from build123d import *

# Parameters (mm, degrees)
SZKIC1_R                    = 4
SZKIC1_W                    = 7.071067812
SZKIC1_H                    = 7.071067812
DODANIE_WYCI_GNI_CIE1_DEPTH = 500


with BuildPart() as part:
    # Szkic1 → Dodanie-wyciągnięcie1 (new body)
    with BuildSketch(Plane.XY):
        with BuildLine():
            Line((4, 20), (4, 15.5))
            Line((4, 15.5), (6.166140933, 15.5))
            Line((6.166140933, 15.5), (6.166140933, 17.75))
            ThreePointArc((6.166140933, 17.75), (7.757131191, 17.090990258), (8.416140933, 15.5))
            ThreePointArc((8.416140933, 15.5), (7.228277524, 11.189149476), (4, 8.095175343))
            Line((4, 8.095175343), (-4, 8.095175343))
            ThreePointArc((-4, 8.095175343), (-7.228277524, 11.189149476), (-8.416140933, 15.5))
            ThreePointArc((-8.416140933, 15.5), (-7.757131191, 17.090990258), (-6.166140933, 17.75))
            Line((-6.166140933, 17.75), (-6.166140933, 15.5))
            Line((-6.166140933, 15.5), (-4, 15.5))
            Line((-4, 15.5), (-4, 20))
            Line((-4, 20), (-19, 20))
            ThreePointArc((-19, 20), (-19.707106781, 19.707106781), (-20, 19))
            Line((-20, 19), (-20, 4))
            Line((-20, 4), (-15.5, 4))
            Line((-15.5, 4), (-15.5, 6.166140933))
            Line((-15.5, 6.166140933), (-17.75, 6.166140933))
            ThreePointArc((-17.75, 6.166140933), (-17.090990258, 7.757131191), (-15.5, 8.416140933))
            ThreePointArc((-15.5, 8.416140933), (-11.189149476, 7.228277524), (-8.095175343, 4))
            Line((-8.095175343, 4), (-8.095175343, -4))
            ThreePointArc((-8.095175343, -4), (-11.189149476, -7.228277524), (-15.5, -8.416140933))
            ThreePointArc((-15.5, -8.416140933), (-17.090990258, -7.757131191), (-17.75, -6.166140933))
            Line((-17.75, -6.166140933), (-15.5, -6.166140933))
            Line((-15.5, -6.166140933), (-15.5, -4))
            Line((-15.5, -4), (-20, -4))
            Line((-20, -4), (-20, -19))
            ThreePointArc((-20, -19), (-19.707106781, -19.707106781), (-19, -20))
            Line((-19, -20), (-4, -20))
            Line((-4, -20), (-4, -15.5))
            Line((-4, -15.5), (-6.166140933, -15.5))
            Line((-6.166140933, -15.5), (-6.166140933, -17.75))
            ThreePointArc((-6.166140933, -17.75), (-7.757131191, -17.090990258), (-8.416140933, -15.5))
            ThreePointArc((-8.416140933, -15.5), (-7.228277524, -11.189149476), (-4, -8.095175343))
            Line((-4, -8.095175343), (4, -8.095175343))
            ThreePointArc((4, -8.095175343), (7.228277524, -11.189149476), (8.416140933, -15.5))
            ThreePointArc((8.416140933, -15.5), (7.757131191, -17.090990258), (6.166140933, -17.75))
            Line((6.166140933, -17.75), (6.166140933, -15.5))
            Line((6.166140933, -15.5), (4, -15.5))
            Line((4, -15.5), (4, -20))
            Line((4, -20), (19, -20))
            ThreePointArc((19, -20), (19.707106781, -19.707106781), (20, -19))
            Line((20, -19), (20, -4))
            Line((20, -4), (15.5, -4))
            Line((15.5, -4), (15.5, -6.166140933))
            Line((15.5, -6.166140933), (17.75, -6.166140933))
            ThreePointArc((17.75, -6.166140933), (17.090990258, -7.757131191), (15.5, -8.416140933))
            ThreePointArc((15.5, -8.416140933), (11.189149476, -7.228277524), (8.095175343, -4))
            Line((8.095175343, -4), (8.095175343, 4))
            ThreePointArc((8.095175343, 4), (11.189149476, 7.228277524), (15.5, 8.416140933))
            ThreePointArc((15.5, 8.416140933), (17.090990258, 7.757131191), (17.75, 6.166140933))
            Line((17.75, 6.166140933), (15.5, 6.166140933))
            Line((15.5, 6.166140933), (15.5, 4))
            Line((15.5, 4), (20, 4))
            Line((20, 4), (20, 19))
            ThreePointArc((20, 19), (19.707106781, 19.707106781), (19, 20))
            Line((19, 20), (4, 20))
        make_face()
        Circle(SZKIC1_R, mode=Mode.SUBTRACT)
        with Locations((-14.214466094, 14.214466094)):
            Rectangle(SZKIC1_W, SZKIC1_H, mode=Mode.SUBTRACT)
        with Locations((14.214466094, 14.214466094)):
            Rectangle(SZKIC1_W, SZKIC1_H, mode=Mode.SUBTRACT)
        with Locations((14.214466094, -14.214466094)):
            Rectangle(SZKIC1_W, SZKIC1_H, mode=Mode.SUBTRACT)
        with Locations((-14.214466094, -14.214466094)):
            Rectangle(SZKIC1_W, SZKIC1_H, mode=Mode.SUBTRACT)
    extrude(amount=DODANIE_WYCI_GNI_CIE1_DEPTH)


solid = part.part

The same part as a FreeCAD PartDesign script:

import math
import FreeCAD as App
import Part
import Sketcher

V = App.Vector


def add_polygon(sketch, points):
    """Adds a closed chain of lines whose ends are joined by coincident constraints."""
    first, n = sketch.GeometryCount, len(points)
    for a, b in zip(points, points[1:] + points[:1]):
        sketch.addGeometry(Part.LineSegment(App.Vector(*a, 0), App.Vector(*b, 0)), False)
    for i in range(n):
        sketch.addConstraint(Sketcher.Constraint("Coincident", first + i, 2, first + (i + 1) % n, 1))

doc = App.newDocument("Part")
body = doc.addObject("PartDesign::Body", "Body")

sketch1 = doc.addObject("Sketcher::SketchObject", "Sketch")
body.addObject(sketch1)
sketch1.AttachmentSupport = (doc.XY_Plane, [""])
sketch1.MapMode = "FlatFace"
sketch1.addGeometry(Part.LineSegment(V(4, 20, 0), V(4, 15.5, 0)), False)
sketch1.addGeometry(Part.LineSegment(V(4, 15.5, 0), V(6.2, 15.5, 0)), False)
sketch1.addGeometry(Part.LineSegment(V(6.2, 15.5, 0), V(6.2, 17.8, 0)), False)
sketch1.addGeometry(Part.ArcOfCircle(Part.Circle(V(6.2, 15.5, 0), V(0, 0, 1), 2.2), math.radians(0), math.radians(90)), False)
sketch1.addGeometry(Part.ArcOfCircle(Part.Circle(V(0, 15.5, 0), V(0, 0, 1), 8.4), math.radians(-62), math.radians(0)), False)
sketch1.addGeometry(Part.LineSegment(V(4, 8.1, 0), V(-4, 8.1, 0)), False)
sketch1.addGeometry(Part.ArcOfCircle(Part.Circle(V(0, 15.5, 0), V(0, 0, 1), 8.4), math.radians(180), math.radians(242)), False)
sketch1.addGeometry(Part.ArcOfCircle(Part.Circle(V(-6.2, 15.5, 0), V(0, 0, 1), 2.2), math.radians(90), math.radians(180)), False)
sketch1.addGeometry(Part.LineSegment(V(-6.2, 17.8, 0), V(-6.2, 15.5, 0)), False)
sketch1.addGeometry(Part.LineSegment(V(-6.2, 15.5, 0), V(-4, 15.5, 0)), False)
sketch1.addGeometry(Part.LineSegment(V(-4, 15.5, 0), V(-4, 20, 0)), False)
sketch1.addGeometry(Part.LineSegment(V(-4, 20, 0), V(-19, 20, 0)), False)
sketch1.addGeometry(Part.ArcOfCircle(Part.Circle(V(-19, 19, 0), V(0, 0, 1), 1), math.radians(90), math.radians(180)), False)
sketch1.addGeometry(Part.LineSegment(V(-20, 19, 0), V(-20, 4, 0)), False)
sketch1.addGeometry(Part.LineSegment(V(-20, 4, 0), V(-15.5, 4, 0)), False)
sketch1.addGeometry(Part.LineSegment(V(-15.5, 4, 0), V(-15.5, 6.2, 0)), False)
sketch1.addGeometry(Part.LineSegment(V(-15.5, 6.2, 0), V(-17.8, 6.2, 0)), False)
sketch1.addGeometry(Part.ArcOfCircle(Part.Circle(V(-15.5, 6.2, 0), V(0, 0, 1), 2.2), math.radians(90), math.radians(180)), False)
sketch1.addGeometry(Part.ArcOfCircle(Part.Circle(V(-15.5, 0, 0), V(0, 0, 1), 8.4), math.radians(28), math.radians(90)), False)
sketch1.addGeometry(Part.LineSegment(V(-8.1, 4, 0), V(-8.1, -4, 0)), False)
sketch1.addGeometry(Part.ArcOfCircle(Part.Circle(V(-15.5, 0, 0), V(0, 0, 1), 8.4), math.radians(-90), math.radians(-28)), False)
sketch1.addGeometry(Part.ArcOfCircle(Part.Circle(V(-15.5, -6.2, 0), V(0, 0, 1), 2.2), math.radians(180), math.radians(270)), False)
sketch1.addGeometry(Part.LineSegment(V(-17.8, -6.2, 0), V(-15.5, -6.2, 0)), False)
sketch1.addGeometry(Part.LineSegment(V(-15.5, -6.2, 0), V(-15.5, -4, 0)), False)
sketch1.addGeometry(Part.LineSegment(V(-15.5, -4, 0), V(-20, -4, 0)), False)
sketch1.addGeometry(Part.LineSegment(V(-20, -4, 0), V(-20, -19, 0)), False)
sketch1.addGeometry(Part.ArcOfCircle(Part.Circle(V(-19, -19, 0), V(0, 0, 1), 1), math.radians(-180), math.radians(-90)), False)
sketch1.addGeometry(Part.LineSegment(V(-19, -20, 0), V(-4, -20, 0)), False)
sketch1.addGeometry(Part.LineSegment(V(-4, -20, 0), V(-4, -15.5, 0)), False)
sketch1.addGeometry(Part.LineSegment(V(-4, -15.5, 0), V(-6.2, -15.5, 0)), False)
sketch1.addGeometry(Part.LineSegment(V(-6.2, -15.5, 0), V(-6.2, -17.8, 0)), False)
sketch1.addGeometry(Part.ArcOfCircle(Part.Circle(V(-6.2, -15.5, 0), V(0, 0, 1), 2.2), math.radians(180), math.radians(270)), False)
sketch1.addGeometry(Part.ArcOfCircle(Part.Circle(V(0, -15.5, 0), V(0, 0, 1), 8.4), math.radians(118), math.radians(180)), False)
sketch1.addGeometry(Part.LineSegment(V(-4, -8.1, 0), V(4, -8.1, 0)), False)
sketch1.addGeometry(Part.ArcOfCircle(Part.Circle(V(0, -15.5, 0), V(0, 0, 1), 8.4), math.radians(0), math.radians(62)), False)
sketch1.addGeometry(Part.ArcOfCircle(Part.Circle(V(6.2, -15.5, 0), V(0, 0, 1), 2.2), math.radians(-90), math.radians(0)), False)
sketch1.addGeometry(Part.LineSegment(V(6.2, -17.8, 0), V(6.2, -15.5, 0)), False)
sketch1.addGeometry(Part.LineSegment(V(6.2, -15.5, 0), V(4, -15.5, 0)), False)
sketch1.addGeometry(Part.LineSegment(V(4, -15.5, 0), V(4, -20, 0)), False)
sketch1.addGeometry(Part.LineSegment(V(4, -20, 0), V(19, -20, 0)), False)
sketch1.addGeometry(Part.ArcOfCircle(Part.Circle(V(19, -19, 0), V(0, 0, 1), 1), math.radians(-90), math.radians(0)), False)
sketch1.addGeometry(Part.LineSegment(V(20, -19, 0), V(20, -4, 0)), False)
sketch1.addGeometry(Part.LineSegment(V(20, -4, 0), V(15.5, -4, 0)), False)
sketch1.addGeometry(Part.LineSegment(V(15.5, -4, 0), V(15.5, -6.2, 0)), False)
sketch1.addGeometry(Part.LineSegment(V(15.5, -6.2, 0), V(17.8, -6.2, 0)), False)
sketch1.addGeometry(Part.ArcOfCircle(Part.Circle(V(15.5, -6.2, 0), V(0, 0, 1), 2.2), math.radians(-90), math.radians(0)), False)
sketch1.addGeometry(Part.ArcOfCircle(Part.Circle(V(15.5, 0, 0), V(0, 0, 1), 8.4), math.radians(-152), math.radians(-90)), False)
sketch1.addGeometry(Part.LineSegment(V(8.1, -4, 0), V(8.1, 4, 0)), False)
sketch1.addGeometry(Part.ArcOfCircle(Part.Circle(V(15.5, 0, 0), V(0, 0, 1), 8.4), math.radians(90), math.radians(152)), False)
sketch1.addGeometry(Part.ArcOfCircle(Part.Circle(V(15.5, 6.2, 0), V(0, 0, 1), 2.2), math.radians(0), math.radians(90)), False)
sketch1.addGeometry(Part.LineSegment(V(17.8, 6.2, 0), V(15.5, 6.2, 0)), False)
sketch1.addGeometry(Part.LineSegment(V(15.5, 6.2, 0), V(15.5, 4, 0)), False)
sketch1.addGeometry(Part.LineSegment(V(15.5, 4, 0), V(20, 4, 0)), False)
sketch1.addGeometry(Part.LineSegment(V(20, 4, 0), V(20, 19, 0)), False)
sketch1.addGeometry(Part.ArcOfCircle(Part.Circle(V(19, 19, 0), V(0, 0, 1), 1), math.radians(0), math.radians(90)), False)
sketch1.addGeometry(Part.LineSegment(V(19, 20, 0), V(4, 20, 0)), False)
add_polygon(sketch1, [(-10.7, -17.8), (-17.8, -17.8), (-17.8, -10.7), (-10.7, -10.7)])
add_polygon(sketch1, [(17.8, -17.8), (10.7, -17.8), (10.7, -10.7), (17.8, -10.7)])
add_polygon(sketch1, [(-10.7, 10.7), (-17.8, 10.7), (-17.8, 17.8), (-10.7, 17.8)])
sketch1.addGeometry(Part.Circle(V(0, 0, 0), V(0, 0, 1), 4), False)
add_polygon(sketch1, [(17.8, 10.7), (10.7, 10.7), (10.7, 17.8), (17.8, 17.8)])
sketch1.addConstraint([
    Sketcher.Constraint("Coincident", 0, 2, 1, 1),
    Sketcher.Constraint("Coincident", 1, 2, 2, 1),
    Sketcher.Constraint("Coincident", 2, 2, 3, 2),
    Sketcher.Constraint("Tangent", 3, 1, 4, 2),
    Sketcher.Constraint("Coincident", 4, 1, 5, 1),
    Sketcher.Constraint("Coincident", 5, 2, 6, 2),
    Sketcher.Constraint("Tangent", 6, 1, 7, 2),
    Sketcher.Constraint("Coincident", 7, 1, 8, 1),
    Sketcher.Constraint("Coincident", 8, 2, 9, 1),
    Sketcher.Constraint("Coincident", 9, 2, 10, 1),
    Sketcher.Constraint("Coincident", 10, 2, 11, 1),
    Sketcher.Constraint("Tangent", 11, 2, 12, 1),
    Sketcher.Constraint("Tangent", 12, 2, 13, 1),
    Sketcher.Constraint("Coincident", 13, 2, 14, 1),
    Sketcher.Constraint("Coincident", 14, 2, 15, 1),
    Sketcher.Constraint("Coincident", 15, 2, 16, 1),
    Sketcher.Constraint("Coincident", 16, 2, 17, 2),
    Sketcher.Constraint("Tangent", 17, 1, 18, 2),
    Sketcher.Constraint("Coincident", 18, 1, 19, 1),
    Sketcher.Constraint("Coincident", 19, 2, 20, 2),
    Sketcher.Constraint("Tangent", 20, 1, 21, 2),
    Sketcher.Constraint("Coincident", 21, 1, 22, 1),
    Sketcher.Constraint("Coincident", 22, 2, 23, 1),
    Sketcher.Constraint("Coincident", 23, 2, 24, 1),
    Sketcher.Constraint("Coincident", 24, 2, 25, 1),
    Sketcher.Constraint("Tangent", 25, 2, 26, 1),
    Sketcher.Constraint("Tangent", 26, 2, 27, 1),
    Sketcher.Constraint("Coincident", 27, 2, 28, 1),
    Sketcher.Constraint("Coincident", 28, 2, 29, 1),
    Sketcher.Constraint("Coincident", 29, 2, 30, 1),
    Sketcher.Constraint("Coincident", 30, 2, 31, 2),
    Sketcher.Constraint("Tangent", 31, 1, 32, 2),
    Sketcher.Constraint("Coincident", 32, 1, 33, 1),
    Sketcher.Constraint("Coincident", 33, 2, 34, 2),
    Sketcher.Constraint("Tangent", 34, 1, 35, 2),
    Sketcher.Constraint("Coincident", 35, 1, 36, 1),
    Sketcher.Constraint("Coincident", 36, 2, 37, 1),
    Sketcher.Constraint("Coincident", 37, 2, 38, 1),
    Sketcher.Constraint("Coincident", 38, 2, 39, 1),
    Sketcher.Constraint("Tangent", 39, 2, 40, 1),
    Sketcher.Constraint("Tangent", 40, 2, 41, 1),
    Sketcher.Constraint("Coincident", 41, 2, 42, 1),
    Sketcher.Constraint("Coincident", 42, 2, 43, 1),
    Sketcher.Constraint("Coincident", 43, 2, 44, 1),
    Sketcher.Constraint("Coincident", 44, 2, 45, 2),
    Sketcher.Constraint("Tangent", 45, 1, 46, 2),
    Sketcher.Constraint("Coincident", 46, 1, 47, 1),
    Sketcher.Constraint("Coincident", 47, 2, 48, 2),
    Sketcher.Constraint("Tangent", 48, 1, 49, 2),
    Sketcher.Constraint("Coincident", 49, 1, 50, 1),
    Sketcher.Constraint("Coincident", 50, 2, 51, 1),
    Sketcher.Constraint("Coincident", 51, 2, 52, 1),
    Sketcher.Constraint("Coincident", 52, 2, 53, 1),
    Sketcher.Constraint("Tangent", 53, 2, 54, 1),
    Sketcher.Constraint("Tangent", 54, 2, 55, 1),
    Sketcher.Constraint("Coincident", 55, 2, 0, 1),
    Sketcher.Constraint("Vertical", 0),
    Sketcher.Constraint("Horizontal", 1),
    Sketcher.Constraint("Vertical", 2),
    Sketcher.Constraint("Horizontal", 5),
    Sketcher.Constraint("Vertical", 8),
    Sketcher.Constraint("Horizontal", 9),
    Sketcher.Constraint("Vertical", 10),
    Sketcher.Constraint("Horizontal", 11),
    Sketcher.Constraint("Vertical", 13),
    Sketcher.Constraint("Horizontal", 14),
    Sketcher.Constraint("Vertical", 15),
    Sketcher.Constraint("Horizontal", 16),
    Sketcher.Constraint("Vertical", 19),
    Sketcher.Constraint("Horizontal", 22),
    Sketcher.Constraint("Vertical", 23),
    Sketcher.Constraint("Horizontal", 24),
    Sketcher.Constraint("Vertical", 25),
    Sketcher.Constraint("Horizontal", 27),
    Sketcher.Constraint("Vertical", 28),
    Sketcher.Constraint("Horizontal", 29),
    Sketcher.Constraint("Vertical", 30),
    Sketcher.Constraint("Horizontal", 33),
    Sketcher.Constraint("Vertical", 36),
    Sketcher.Constraint("Horizontal", 37),
    Sketcher.Constraint("Vertical", 38),
    Sketcher.Constraint("Horizontal", 39),
    Sketcher.Constraint("Vertical", 41),
    Sketcher.Constraint("Horizontal", 42),
    Sketcher.Constraint("Vertical", 43),
    Sketcher.Constraint("Horizontal", 44),
    Sketcher.Constraint("Vertical", 47),
    Sketcher.Constraint("Horizontal", 50),
    Sketcher.Constraint("Vertical", 51),
    Sketcher.Constraint("Horizontal", 52),
    Sketcher.Constraint("Vertical", 53),
    Sketcher.Constraint("Horizontal", 55),
    Sketcher.Constraint("Horizontal", 56),
    Sketcher.Constraint("Vertical", 57),
    Sketcher.Constraint("Horizontal", 58),
    Sketcher.Constraint("Vertical", 59),
    Sketcher.Constraint("Horizontal", 60),
    Sketcher.Constraint("Vertical", 61),
    Sketcher.Constraint("Horizontal", 62),
    Sketcher.Constraint("Vertical", 63),
    Sketcher.Constraint("Horizontal", 64),
    Sketcher.Constraint("Vertical", 65),
    Sketcher.Constraint("Horizontal", 66),
    Sketcher.Constraint("Vertical", 67),
    Sketcher.Constraint("Horizontal", 69),
    Sketcher.Constraint("Vertical", 70),
    Sketcher.Constraint("Horizontal", 71),
    Sketcher.Constraint("Vertical", 72),
    Sketcher.Constraint("Coincident", 68, 3, -1, 1),
    Sketcher.Constraint("Coincident", 6, 3, 4, 3),
    Sketcher.Constraint("Coincident", 20, 3, 18, 3),
    Sketcher.Constraint("Coincident", 34, 3, 32, 3),
    Sketcher.Constraint("Coincident", 48, 3, 46, 3),
    Sketcher.Constraint("Coincident", 1, 2, 3, 3),
    Sketcher.Constraint("Coincident", 8, 2, 7, 3),
    Sketcher.Constraint("Coincident", 15, 2, 17, 3),
    Sketcher.Constraint("Coincident", 22, 2, 21, 3),
    Sketcher.Constraint("Coincident", 29, 2, 31, 3),
    Sketcher.Constraint("Coincident", 36, 2, 35, 3),
    Sketcher.Constraint("Coincident", 43, 2, 45, 3),
    Sketcher.Constraint("Coincident", 50, 2, 49, 3),
    Sketcher.Constraint("Equal", 4, 6),
    Sketcher.Constraint("Equal", 3, 7),
    Sketcher.Constraint("Equal", 7, 17),
    Sketcher.Constraint("Equal", 6, 18),
    Sketcher.Constraint("Equal", 18, 20),
    Sketcher.Constraint("Equal", 17, 21),
    Sketcher.Constraint("Equal", 12, 26),
    Sketcher.Constraint("Equal", 21, 31),
    Sketcher.Constraint("Equal", 20, 32),
    Sketcher.Constraint("Equal", 32, 34),
    Sketcher.Constraint("Equal", 31, 35),
    Sketcher.Constraint("Equal", 26, 40),
    Sketcher.Constraint("Equal", 35, 45),
    Sketcher.Constraint("Equal", 34, 46),
    Sketcher.Constraint("Equal", 46, 48),
    Sketcher.Constraint("Equal", 45, 49),
    Sketcher.Constraint("Equal", 40, 54),
    Sketcher.Constraint("Symmetric", 3, 3, 31, 3, -1, 1),
    Sketcher.Constraint("Symmetric", 12, 3, 40, 3, -1, 1),
    Sketcher.Constraint("Symmetric", 17, 3, 45, 3, -1, 1),
    Sketcher.Constraint("Symmetric", 26, 3, 54, 3, -1, 1),
    Sketcher.Constraint("Symmetric", 4, 1, 32, 1, -1, 1),
    Sketcher.Constraint("Symmetric", 9, 2, 37, 2, -1, 1),
    Sketcher.Constraint("Symmetric", 18, 1, 46, 1, -1, 1),
    Sketcher.Constraint("Symmetric", 23, 2, 51, 2, -1, 1),
    Sketcher.Constraint("Symmetric", 62, 2, 64, 2, -1, 1),
    Sketcher.Constraint("Symmetric", 60, 2, 66, 2, -1, 1),
    Sketcher.Constraint("Symmetric", 58, 2, 69, 2, -1, 1),
    Sketcher.Constraint("Symmetric", 56, 2, 71, 2, -1, 1),
    Sketcher.Constraint("Symmetric", 3, 3, 7, 3, -2),
    Sketcher.Constraint("Symmetric", 26, 3, 40, 3, -2),
    Sketcher.Constraint("Symmetric", 21, 3, 45, 3, -2),
    Sketcher.Constraint("Symmetric", 59, 2, 60, 2, -2),
    Sketcher.Constraint("Symmetric", 57, 2, 62, 2, -2),
    Sketcher.Constraint("Horizontal", 3, 3, 4, 3),
    Sketcher.Constraint("Horizontal", 14, 2, 18, 1),
    Sketcher.Constraint("Horizontal", 19, 2, 23, 2),
    Sketcher.Constraint("Horizontal", 24, 2, 41, 2),
    Sketcher.Constraint("Horizontal", 35, 1, 56, 2),
    Sketcher.Constraint("Vertical", 17, 3, 18, 3),
    Sketcher.Constraint("Vertical", 0, 2, 4, 1),
    Sketcher.Constraint("Vertical", 5, 2, 9, 2),
    Sketcher.Constraint("Vertical", 10, 2, 27, 2),
    Sketcher.Constraint("Vertical", 21, 1, 56, 2),
    Sketcher.Constraint("Equal", 52, 0),
    Sketcher.Constraint("Equal", 55, 13),
    Sketcher.Constraint("Equal", 37, 15),
    Sketcher.Constraint("Equal", 71, 57),
    Sketcher.Constraint("Diameter", 68, 8.0),
    Sketcher.Constraint("Radius", 12, 1.0),
    Sketcher.Constraint("DistanceX", 5, 2, 5, 1, 8.0),
    Sketcher.Constraint("DistanceX", 11, 2, 11, 1, 15.0),
    Sketcher.Constraint("Radius", 3, 2.25),
    Sketcher.Constraint("DistanceX", 14, 1, 14, 2, 4.5),
    Sketcher.Constraint("Radius", 4, 8.416141),
    Sketcher.Constraint("DistanceX", 56, 2, 56, 1, 7.071068),
])
pad1 = doc.addObject("PartDesign::Pad", "Pad")
body.addObject(pad1)
pad1.Profile = sketch1
pad1.Length = 500

doc.recompute()
